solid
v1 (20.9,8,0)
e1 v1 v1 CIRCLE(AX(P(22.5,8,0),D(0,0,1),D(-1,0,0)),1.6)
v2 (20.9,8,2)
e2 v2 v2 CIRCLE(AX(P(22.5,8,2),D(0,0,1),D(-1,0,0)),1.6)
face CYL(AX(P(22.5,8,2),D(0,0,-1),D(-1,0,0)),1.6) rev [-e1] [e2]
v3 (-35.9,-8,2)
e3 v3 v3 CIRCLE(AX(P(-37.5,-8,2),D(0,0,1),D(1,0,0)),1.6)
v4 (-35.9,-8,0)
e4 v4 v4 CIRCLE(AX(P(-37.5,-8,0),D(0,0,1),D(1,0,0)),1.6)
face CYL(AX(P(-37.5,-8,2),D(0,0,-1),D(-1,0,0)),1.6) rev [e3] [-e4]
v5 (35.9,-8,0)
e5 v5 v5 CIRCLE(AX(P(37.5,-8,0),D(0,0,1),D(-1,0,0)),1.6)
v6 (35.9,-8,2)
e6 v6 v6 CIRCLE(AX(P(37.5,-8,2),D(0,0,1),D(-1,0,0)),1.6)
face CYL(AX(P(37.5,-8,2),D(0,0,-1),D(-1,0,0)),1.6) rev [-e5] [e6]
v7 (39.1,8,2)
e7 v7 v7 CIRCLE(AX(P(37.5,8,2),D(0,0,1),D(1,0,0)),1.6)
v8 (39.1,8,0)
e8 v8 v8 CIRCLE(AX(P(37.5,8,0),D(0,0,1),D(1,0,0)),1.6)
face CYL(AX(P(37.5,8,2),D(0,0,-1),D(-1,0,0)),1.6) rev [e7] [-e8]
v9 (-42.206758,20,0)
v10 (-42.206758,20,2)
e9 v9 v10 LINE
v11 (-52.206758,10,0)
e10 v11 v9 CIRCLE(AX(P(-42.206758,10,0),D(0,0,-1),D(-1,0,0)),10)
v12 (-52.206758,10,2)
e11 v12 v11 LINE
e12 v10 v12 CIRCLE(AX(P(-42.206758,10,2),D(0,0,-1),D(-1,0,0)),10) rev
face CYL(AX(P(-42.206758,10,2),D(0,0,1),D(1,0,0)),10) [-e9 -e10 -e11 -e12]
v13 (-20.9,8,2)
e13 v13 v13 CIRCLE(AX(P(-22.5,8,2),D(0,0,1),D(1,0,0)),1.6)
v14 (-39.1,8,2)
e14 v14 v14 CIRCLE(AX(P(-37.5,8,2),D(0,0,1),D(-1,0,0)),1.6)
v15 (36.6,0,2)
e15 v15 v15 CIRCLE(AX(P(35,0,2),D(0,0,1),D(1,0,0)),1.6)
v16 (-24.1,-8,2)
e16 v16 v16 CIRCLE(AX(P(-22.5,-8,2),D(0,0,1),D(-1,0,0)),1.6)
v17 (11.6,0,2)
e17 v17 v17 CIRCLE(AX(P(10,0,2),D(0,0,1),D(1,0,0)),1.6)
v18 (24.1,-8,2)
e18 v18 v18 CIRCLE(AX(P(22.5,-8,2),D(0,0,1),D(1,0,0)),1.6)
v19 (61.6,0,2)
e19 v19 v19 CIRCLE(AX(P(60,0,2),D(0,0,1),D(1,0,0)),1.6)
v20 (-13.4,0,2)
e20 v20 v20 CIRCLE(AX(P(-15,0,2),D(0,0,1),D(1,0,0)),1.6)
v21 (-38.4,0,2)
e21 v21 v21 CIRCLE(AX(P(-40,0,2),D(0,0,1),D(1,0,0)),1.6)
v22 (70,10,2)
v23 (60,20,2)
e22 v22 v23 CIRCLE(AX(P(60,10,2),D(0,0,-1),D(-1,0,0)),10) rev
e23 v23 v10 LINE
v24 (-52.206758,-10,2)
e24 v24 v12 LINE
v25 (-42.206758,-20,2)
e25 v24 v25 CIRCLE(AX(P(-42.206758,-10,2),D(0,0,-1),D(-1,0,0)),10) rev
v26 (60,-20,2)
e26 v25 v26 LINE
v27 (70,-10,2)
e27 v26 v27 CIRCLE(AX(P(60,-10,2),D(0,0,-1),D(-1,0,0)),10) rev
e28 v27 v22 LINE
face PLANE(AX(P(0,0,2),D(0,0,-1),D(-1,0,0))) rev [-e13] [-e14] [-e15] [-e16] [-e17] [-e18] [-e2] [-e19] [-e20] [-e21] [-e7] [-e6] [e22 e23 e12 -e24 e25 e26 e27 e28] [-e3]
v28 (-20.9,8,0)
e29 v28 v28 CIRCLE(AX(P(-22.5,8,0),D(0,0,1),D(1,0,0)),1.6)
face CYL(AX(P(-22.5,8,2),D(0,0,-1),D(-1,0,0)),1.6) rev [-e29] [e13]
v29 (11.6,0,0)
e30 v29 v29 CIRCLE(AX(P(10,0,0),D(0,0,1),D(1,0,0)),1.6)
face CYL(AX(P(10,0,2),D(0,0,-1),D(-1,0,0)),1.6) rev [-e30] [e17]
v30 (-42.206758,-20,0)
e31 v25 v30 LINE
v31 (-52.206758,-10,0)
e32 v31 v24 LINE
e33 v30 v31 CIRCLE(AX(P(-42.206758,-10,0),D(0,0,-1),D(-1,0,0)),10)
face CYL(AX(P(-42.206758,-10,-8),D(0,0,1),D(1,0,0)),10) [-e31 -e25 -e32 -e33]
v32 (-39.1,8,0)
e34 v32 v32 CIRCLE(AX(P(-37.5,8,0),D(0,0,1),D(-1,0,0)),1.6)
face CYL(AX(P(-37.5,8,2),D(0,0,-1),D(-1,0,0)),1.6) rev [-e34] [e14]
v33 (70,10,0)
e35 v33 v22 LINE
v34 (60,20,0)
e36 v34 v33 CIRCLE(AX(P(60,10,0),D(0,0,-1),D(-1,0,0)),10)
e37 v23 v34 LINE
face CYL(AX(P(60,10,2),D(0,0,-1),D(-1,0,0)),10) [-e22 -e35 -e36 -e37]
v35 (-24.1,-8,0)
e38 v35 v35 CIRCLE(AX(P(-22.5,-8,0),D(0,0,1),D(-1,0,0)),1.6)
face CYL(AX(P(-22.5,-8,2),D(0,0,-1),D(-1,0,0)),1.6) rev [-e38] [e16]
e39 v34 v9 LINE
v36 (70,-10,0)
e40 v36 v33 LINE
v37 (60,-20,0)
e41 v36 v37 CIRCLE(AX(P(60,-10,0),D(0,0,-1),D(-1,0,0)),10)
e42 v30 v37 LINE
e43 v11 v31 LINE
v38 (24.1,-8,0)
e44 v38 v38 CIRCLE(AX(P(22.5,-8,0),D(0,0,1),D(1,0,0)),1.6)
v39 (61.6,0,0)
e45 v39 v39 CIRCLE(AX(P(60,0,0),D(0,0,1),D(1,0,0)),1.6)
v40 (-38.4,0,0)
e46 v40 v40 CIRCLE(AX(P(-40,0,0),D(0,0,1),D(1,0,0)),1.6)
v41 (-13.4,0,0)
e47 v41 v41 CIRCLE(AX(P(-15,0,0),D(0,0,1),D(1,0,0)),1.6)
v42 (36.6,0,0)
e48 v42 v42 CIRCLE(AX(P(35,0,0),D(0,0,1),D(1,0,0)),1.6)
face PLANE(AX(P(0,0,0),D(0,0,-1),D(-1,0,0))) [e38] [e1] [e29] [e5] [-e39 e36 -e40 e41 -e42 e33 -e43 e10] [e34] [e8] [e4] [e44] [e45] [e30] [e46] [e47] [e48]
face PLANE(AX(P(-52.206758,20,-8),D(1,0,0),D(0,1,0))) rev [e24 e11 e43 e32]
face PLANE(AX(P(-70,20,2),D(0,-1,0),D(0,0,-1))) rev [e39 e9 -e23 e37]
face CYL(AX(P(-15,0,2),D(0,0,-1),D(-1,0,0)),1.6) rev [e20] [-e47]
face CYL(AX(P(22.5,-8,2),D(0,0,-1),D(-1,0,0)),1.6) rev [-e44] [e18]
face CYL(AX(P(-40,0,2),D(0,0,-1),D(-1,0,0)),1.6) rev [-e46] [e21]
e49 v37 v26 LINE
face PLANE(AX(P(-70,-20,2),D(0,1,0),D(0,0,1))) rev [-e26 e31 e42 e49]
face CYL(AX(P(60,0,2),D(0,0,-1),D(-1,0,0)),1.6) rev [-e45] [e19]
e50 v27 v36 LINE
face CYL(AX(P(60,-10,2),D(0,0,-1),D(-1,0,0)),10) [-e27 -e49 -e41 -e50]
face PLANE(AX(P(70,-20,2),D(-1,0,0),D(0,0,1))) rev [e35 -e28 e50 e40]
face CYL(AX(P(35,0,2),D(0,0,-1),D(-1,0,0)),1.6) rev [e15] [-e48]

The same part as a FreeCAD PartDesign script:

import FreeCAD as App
import Part
import Sketcher


def edges_at(feature, points):
    """Names of the edges that pass closest to the given points."""
    edges = feature.Shape.Edges
    near = lambda p: min(range(len(edges)), key=lambda i: edges[i].distToShape(Part.Vertex(*p))[0])
    return sorted({f"Edge{near(p) + 1}" for p in points})


def add_polygon(sketch, points):
    """Adds a closed chain of lines whose ends are joined by coincident constraints."""
    first, n = sketch.GeometryCount, len(points)
    for a, b in zip(points, points[1:] + points[:1]):
        sketch.addGeometry(Part.LineSegment(App.Vector(*a, 0), App.Vector(*b, 0)), False)
    for i in range(n):
        sketch.addConstraint(Sketcher.Constraint("Coincident", first + i, 2, first + (i + 1) % n, 1))

doc = App.newDocument("Part")
params = doc.addObject("Spreadsheet::Sheet", "Params")
for row, (alias, value) in enumerate([
    ("sketch1_diameter", "3.2 mm"),
    ("sketch1_width", "140 mm"),
    ("sketch1_height", "40 mm"),
    ("pad1_length", "2 mm"),
    ("fillet_radius", "10 mm"),
    ("sketch2_height", "40 mm"),
    ("pocket1_length", "10 mm"),
    ("fillet2_radius", "10 mm"),
], start=1):
    params.set(f"A{row}", alias)
    params.set(f"B{row}", "=" + value)
    params.setAlias(f"B{row}", alias)

body = doc.addObject("PartDesign::Body", "Body")

# Sketch on XY plane
sketch1 = doc.addObject("Sketcher::SketchObject", "Sketch")
body.addObject(sketch1)
sketch1.AttachmentSupport = (doc.XY_Plane, [""])
sketch1.MapMode = "FlatFace"
add_polygon(sketch1, [(-70, 20), (-70, -20), (70, -20), (70, 20)])  # lines 0-3
sketch1.addGeometry(Part.Circle(App.Vector(-37.5, -8, 0), App.Vector(0, 0, 1), 1.6), False)  # 4
sketch1.addGeometry(Part.Circle(App.Vector(-22.5, -8, 0), App.Vector(0, 0, 1), 1.6), False)  # 5
sketch1.addGeometry(Part.Circle(App.Vector(22.5, -8, 0), App.Vector(0, 0, 1), 1.6), False)  # 6
sketch1.addGeometry(Part.Circle(App.Vector(37.5, -8, 0), App.Vector(0, 0, 1), 1.6), False)  # 7
sketch1.addGeometry(Part.Circle(App.Vector(-40, 0, 0), App.Vector(0, 0, 1), 1.6), False)  # 8
sketch1.addGeometry(Part.Circle(App.Vector(-15, 0, 0), App.Vector(0, 0, 1), 1.6), False)  # 9
sketch1.addGeometry(Part.Circle(App.Vector(-37.5, 8, 0), App.Vector(0, 0, 1), 1.6), False)  # 10
sketch1.addGeometry(Part.Circle(App.Vector(-22.5, 8, 0), App.Vector(0, 0, 1), 1.6), False)  # 11
sketch1.addGeometry(Part.Circle(App.Vector(10, 0, 0), App.Vector(0, 0, 1), 1.6), False)  # 12
sketch1.addGeometry(Part.Circle(App.Vector(35, 0, 0), App.Vector(0, 0, 1), 1.6), False)  # 13
sketch1.addGeometry(Part.Circle(App.Vector(60, 0, 0), App.Vector(0, 0, 1), 1.6), False)  # 14
sketch1.addGeometry(Part.Circle(App.Vector(22.5, 8, 0), App.Vector(0, 0, 1), 1.6), False)  # 15
sketch1.addGeometry(Part.Circle(App.Vector(37.5, 8, 0), App.Vector(0, 0, 1), 1.6), False)  # 16
sketch1.addConstraint(Sketcher.Constraint("Vertical", 0))
sketch1.addConstraint(Sketcher.Constraint("Horizontal", 1))
sketch1.addConstraint(Sketcher.Constraint("Vertical", 2))
sketch1.addConstraint(Sketcher.Constraint("Horizontal", 3))
sketch1.addConstraint(Sketcher.Constraint("Equal", 4, 5))
sketch1.addConstraint(Sketcher.Constraint("Equal", 5, 6))
sketch1.addConstraint(Sketcher.Constraint("Equal", 6, 7))
sketch1.addConstraint(Sketcher.Constraint("Equal", 7, 8))
sketch1.addConstraint(Sketcher.Constraint("Equal", 8, 9))
sketch1.addConstraint(Sketcher.Constraint("Equal", 9, 10))
sketch1.addConstraint(Sketcher.Constraint("Equal", 10, 11))
sketch1.addConstraint(Sketcher.Constraint("Equal", 11, 12))
sketch1.addConstraint(Sketcher.Constraint("Equal", 12, 13))
sketch1.addConstraint(Sketcher.Constraint("Equal", 13, 14))
sketch1.addConstraint(Sketcher.Constraint("Equal", 14, 15))
sketch1.addConstraint(Sketcher.Constraint("Equal", 15, 16))
sketch1.addConstraint(Sketcher.Constraint("Symmetric", 7, 3, 10, 3, -1, 1))
sketch1.addConstraint(Sketcher.Constraint("Symmetric", 6, 3, 11, 3, -1, 1))
sketch1.addConstraint(Sketcher.Constraint("Symmetric", 5, 3, 15, 3, -1, 1))
sketch1.addConstraint(Sketcher.Constraint("Symmetric", 4, 3, 16, 3, -1, 1))
sketch1.addConstraint(Sketcher.Constraint("Symmetric", 0, 2, 2, 2, -1, 1))
sketch1.addConstraint(Sketcher.Constraint("Symmetric", 5, 3, 6, 3, -2))
sketch1.addConstraint(Sketcher.Constraint("Symmetric", 4, 3, 7, 3, -2))
sketch1.addConstraint(Sketcher.Constraint("PointOnObject", 8, 3, -1))
sketch1.addConstraint(Sketcher.Constraint("PointOnObject", 9, 3, -1))
sketch1.addConstraint(Sketcher.Constraint("PointOnObject", 12, 3, -1))
sketch1.addConstraint(Sketcher.Constraint("PointOnObject", 13, 3, -1))
sketch1.addConstraint(Sketcher.Constraint("PointOnObject", 14, 3, -1))
sketch1.addConstraint(Sketcher.Constraint("Horizontal", 4, 3, 5, 3))
sketch1.addConstraint(Sketcher.Constraint("Diameter", 4, 3.2))
sketch1.addConstraint(Sketcher.Constraint("DistanceX", 1, 1, 1, 2, 140.0))
sketch1.addConstraint(Sketcher.Constraint("DistanceY", 0, 2, 0, 1, 40.0))
sketch1.addConstraint(Sketcher.Constraint("DistanceY", 4, 3, -1, 1, 8.0))
sketch1.addConstraint(Sketcher.Constraint("DistanceX", 8, 3, -1, 1, 40.0))
sketch1.addConstraint(Sketcher.Constraint("DistanceX", 9, 3, -1, 1, 15.0))
sketch1.addConstraint(Sketcher.Constraint("DistanceX", -1, 1, 12, 3, 10.0))
sketch1.addConstraint(Sketcher.Constraint("DistanceX", -1, 1, 13, 3, 35.0))
sketch1.addConstraint(Sketcher.Constraint("DistanceX", -1, 1, 14, 3, 60.0))
sketch1.addConstraint(Sketcher.Constraint("DistanceX", 4, 3, 5, 3, 15.0))
sketch1.addConstraint(Sketcher.Constraint("DistanceX", 5, 3, 6, 3, 45.0))
sketch1.setExpression("Constraints[33]", "Params.sketch1_diameter")
sketch1.setExpression("Constraints[34]", "Params.sketch1_width")
sketch1.setExpression("Constraints[35]", "Params.sketch1_height")
pad1 = doc.addObject("PartDesign::Pad", "Pad")
body.addObject(pad1)
pad1.Profile = sketch1
pad1.setExpression("Length", "Params.pad1_length")
doc.recompute()

fillet = doc.addObject("PartDesign::Fillet", "Fillet")
body.addObject(fillet)
fillet.Base = (pad1, edges_at(pad1, [
    (70, -20, 1),
    (-70, -20, 1),
    (-70, 20, 1),
    (70, 20, 1),
]))
fillet.setExpression("Radius", "Params.fillet_radius")

# Sketch on XY plane
sketch2 = doc.addObject("Sketcher::SketchObject", "Sketch001")
body.addObject(sketch2)
sketch2.AttachmentSupport = (doc.XY_Plane, [""])
sketch2.MapMode = "FlatFace"
sketch2.AttachmentOffset = App.Placement(App.Vector(0, 0, 2), App.Rotation())
add_polygon(sketch2, [(-76.646095, 20), (-76.646095, -20), (-52.206758, -20), (-52.206758, 20)])  # lines 0-3
sketch2.addConstraint(Sketcher.Constraint("Vertical", 0))
sketch2.addConstraint(Sketcher.Constraint("Horizontal", 1))
sketch2.addConstraint(Sketcher.Constraint("Vertical", 2))
sketch2.addConstraint(Sketcher.Constraint("Horizontal", 3))
sketch2.addConstraint(Sketcher.Constraint("DistanceY", 0, 2, 0, 1, 40.0))
sketch2.addConstraint(Sketcher.Constraint("DistanceY", 0, 2, -1, 1, 20.0))
sketch2.addConstraint(Sketcher.Constraint("DistanceX", 1, 1, 1, 2, 24.439336))
sketch2.addConstraint(Sketcher.Constraint("DistanceX", 1, 2, -1, 1, 52.206758))
sketch2.setExpression("Constraints[8]", "Params.sketch2_height")
pocket1 = doc.addObject("PartDesign::Pocket", "Pocket")
body.addObject(pocket1)
pocket1.Profile = sketch2
pocket1.setExpression("Length", "Params.pocket1_length")
doc.recompute()

fillet2 = doc.addObject("PartDesign::Fillet", "Fillet001")
body.addObject(fillet2)
fillet2.Base = (pocket1, edges_at(pocket1, [(-52.207, 20, 1), (-52.207, -20, 1)]))
fillet2.setExpression("Radius", "Params.fillet2_radius")

doc.recompute()
